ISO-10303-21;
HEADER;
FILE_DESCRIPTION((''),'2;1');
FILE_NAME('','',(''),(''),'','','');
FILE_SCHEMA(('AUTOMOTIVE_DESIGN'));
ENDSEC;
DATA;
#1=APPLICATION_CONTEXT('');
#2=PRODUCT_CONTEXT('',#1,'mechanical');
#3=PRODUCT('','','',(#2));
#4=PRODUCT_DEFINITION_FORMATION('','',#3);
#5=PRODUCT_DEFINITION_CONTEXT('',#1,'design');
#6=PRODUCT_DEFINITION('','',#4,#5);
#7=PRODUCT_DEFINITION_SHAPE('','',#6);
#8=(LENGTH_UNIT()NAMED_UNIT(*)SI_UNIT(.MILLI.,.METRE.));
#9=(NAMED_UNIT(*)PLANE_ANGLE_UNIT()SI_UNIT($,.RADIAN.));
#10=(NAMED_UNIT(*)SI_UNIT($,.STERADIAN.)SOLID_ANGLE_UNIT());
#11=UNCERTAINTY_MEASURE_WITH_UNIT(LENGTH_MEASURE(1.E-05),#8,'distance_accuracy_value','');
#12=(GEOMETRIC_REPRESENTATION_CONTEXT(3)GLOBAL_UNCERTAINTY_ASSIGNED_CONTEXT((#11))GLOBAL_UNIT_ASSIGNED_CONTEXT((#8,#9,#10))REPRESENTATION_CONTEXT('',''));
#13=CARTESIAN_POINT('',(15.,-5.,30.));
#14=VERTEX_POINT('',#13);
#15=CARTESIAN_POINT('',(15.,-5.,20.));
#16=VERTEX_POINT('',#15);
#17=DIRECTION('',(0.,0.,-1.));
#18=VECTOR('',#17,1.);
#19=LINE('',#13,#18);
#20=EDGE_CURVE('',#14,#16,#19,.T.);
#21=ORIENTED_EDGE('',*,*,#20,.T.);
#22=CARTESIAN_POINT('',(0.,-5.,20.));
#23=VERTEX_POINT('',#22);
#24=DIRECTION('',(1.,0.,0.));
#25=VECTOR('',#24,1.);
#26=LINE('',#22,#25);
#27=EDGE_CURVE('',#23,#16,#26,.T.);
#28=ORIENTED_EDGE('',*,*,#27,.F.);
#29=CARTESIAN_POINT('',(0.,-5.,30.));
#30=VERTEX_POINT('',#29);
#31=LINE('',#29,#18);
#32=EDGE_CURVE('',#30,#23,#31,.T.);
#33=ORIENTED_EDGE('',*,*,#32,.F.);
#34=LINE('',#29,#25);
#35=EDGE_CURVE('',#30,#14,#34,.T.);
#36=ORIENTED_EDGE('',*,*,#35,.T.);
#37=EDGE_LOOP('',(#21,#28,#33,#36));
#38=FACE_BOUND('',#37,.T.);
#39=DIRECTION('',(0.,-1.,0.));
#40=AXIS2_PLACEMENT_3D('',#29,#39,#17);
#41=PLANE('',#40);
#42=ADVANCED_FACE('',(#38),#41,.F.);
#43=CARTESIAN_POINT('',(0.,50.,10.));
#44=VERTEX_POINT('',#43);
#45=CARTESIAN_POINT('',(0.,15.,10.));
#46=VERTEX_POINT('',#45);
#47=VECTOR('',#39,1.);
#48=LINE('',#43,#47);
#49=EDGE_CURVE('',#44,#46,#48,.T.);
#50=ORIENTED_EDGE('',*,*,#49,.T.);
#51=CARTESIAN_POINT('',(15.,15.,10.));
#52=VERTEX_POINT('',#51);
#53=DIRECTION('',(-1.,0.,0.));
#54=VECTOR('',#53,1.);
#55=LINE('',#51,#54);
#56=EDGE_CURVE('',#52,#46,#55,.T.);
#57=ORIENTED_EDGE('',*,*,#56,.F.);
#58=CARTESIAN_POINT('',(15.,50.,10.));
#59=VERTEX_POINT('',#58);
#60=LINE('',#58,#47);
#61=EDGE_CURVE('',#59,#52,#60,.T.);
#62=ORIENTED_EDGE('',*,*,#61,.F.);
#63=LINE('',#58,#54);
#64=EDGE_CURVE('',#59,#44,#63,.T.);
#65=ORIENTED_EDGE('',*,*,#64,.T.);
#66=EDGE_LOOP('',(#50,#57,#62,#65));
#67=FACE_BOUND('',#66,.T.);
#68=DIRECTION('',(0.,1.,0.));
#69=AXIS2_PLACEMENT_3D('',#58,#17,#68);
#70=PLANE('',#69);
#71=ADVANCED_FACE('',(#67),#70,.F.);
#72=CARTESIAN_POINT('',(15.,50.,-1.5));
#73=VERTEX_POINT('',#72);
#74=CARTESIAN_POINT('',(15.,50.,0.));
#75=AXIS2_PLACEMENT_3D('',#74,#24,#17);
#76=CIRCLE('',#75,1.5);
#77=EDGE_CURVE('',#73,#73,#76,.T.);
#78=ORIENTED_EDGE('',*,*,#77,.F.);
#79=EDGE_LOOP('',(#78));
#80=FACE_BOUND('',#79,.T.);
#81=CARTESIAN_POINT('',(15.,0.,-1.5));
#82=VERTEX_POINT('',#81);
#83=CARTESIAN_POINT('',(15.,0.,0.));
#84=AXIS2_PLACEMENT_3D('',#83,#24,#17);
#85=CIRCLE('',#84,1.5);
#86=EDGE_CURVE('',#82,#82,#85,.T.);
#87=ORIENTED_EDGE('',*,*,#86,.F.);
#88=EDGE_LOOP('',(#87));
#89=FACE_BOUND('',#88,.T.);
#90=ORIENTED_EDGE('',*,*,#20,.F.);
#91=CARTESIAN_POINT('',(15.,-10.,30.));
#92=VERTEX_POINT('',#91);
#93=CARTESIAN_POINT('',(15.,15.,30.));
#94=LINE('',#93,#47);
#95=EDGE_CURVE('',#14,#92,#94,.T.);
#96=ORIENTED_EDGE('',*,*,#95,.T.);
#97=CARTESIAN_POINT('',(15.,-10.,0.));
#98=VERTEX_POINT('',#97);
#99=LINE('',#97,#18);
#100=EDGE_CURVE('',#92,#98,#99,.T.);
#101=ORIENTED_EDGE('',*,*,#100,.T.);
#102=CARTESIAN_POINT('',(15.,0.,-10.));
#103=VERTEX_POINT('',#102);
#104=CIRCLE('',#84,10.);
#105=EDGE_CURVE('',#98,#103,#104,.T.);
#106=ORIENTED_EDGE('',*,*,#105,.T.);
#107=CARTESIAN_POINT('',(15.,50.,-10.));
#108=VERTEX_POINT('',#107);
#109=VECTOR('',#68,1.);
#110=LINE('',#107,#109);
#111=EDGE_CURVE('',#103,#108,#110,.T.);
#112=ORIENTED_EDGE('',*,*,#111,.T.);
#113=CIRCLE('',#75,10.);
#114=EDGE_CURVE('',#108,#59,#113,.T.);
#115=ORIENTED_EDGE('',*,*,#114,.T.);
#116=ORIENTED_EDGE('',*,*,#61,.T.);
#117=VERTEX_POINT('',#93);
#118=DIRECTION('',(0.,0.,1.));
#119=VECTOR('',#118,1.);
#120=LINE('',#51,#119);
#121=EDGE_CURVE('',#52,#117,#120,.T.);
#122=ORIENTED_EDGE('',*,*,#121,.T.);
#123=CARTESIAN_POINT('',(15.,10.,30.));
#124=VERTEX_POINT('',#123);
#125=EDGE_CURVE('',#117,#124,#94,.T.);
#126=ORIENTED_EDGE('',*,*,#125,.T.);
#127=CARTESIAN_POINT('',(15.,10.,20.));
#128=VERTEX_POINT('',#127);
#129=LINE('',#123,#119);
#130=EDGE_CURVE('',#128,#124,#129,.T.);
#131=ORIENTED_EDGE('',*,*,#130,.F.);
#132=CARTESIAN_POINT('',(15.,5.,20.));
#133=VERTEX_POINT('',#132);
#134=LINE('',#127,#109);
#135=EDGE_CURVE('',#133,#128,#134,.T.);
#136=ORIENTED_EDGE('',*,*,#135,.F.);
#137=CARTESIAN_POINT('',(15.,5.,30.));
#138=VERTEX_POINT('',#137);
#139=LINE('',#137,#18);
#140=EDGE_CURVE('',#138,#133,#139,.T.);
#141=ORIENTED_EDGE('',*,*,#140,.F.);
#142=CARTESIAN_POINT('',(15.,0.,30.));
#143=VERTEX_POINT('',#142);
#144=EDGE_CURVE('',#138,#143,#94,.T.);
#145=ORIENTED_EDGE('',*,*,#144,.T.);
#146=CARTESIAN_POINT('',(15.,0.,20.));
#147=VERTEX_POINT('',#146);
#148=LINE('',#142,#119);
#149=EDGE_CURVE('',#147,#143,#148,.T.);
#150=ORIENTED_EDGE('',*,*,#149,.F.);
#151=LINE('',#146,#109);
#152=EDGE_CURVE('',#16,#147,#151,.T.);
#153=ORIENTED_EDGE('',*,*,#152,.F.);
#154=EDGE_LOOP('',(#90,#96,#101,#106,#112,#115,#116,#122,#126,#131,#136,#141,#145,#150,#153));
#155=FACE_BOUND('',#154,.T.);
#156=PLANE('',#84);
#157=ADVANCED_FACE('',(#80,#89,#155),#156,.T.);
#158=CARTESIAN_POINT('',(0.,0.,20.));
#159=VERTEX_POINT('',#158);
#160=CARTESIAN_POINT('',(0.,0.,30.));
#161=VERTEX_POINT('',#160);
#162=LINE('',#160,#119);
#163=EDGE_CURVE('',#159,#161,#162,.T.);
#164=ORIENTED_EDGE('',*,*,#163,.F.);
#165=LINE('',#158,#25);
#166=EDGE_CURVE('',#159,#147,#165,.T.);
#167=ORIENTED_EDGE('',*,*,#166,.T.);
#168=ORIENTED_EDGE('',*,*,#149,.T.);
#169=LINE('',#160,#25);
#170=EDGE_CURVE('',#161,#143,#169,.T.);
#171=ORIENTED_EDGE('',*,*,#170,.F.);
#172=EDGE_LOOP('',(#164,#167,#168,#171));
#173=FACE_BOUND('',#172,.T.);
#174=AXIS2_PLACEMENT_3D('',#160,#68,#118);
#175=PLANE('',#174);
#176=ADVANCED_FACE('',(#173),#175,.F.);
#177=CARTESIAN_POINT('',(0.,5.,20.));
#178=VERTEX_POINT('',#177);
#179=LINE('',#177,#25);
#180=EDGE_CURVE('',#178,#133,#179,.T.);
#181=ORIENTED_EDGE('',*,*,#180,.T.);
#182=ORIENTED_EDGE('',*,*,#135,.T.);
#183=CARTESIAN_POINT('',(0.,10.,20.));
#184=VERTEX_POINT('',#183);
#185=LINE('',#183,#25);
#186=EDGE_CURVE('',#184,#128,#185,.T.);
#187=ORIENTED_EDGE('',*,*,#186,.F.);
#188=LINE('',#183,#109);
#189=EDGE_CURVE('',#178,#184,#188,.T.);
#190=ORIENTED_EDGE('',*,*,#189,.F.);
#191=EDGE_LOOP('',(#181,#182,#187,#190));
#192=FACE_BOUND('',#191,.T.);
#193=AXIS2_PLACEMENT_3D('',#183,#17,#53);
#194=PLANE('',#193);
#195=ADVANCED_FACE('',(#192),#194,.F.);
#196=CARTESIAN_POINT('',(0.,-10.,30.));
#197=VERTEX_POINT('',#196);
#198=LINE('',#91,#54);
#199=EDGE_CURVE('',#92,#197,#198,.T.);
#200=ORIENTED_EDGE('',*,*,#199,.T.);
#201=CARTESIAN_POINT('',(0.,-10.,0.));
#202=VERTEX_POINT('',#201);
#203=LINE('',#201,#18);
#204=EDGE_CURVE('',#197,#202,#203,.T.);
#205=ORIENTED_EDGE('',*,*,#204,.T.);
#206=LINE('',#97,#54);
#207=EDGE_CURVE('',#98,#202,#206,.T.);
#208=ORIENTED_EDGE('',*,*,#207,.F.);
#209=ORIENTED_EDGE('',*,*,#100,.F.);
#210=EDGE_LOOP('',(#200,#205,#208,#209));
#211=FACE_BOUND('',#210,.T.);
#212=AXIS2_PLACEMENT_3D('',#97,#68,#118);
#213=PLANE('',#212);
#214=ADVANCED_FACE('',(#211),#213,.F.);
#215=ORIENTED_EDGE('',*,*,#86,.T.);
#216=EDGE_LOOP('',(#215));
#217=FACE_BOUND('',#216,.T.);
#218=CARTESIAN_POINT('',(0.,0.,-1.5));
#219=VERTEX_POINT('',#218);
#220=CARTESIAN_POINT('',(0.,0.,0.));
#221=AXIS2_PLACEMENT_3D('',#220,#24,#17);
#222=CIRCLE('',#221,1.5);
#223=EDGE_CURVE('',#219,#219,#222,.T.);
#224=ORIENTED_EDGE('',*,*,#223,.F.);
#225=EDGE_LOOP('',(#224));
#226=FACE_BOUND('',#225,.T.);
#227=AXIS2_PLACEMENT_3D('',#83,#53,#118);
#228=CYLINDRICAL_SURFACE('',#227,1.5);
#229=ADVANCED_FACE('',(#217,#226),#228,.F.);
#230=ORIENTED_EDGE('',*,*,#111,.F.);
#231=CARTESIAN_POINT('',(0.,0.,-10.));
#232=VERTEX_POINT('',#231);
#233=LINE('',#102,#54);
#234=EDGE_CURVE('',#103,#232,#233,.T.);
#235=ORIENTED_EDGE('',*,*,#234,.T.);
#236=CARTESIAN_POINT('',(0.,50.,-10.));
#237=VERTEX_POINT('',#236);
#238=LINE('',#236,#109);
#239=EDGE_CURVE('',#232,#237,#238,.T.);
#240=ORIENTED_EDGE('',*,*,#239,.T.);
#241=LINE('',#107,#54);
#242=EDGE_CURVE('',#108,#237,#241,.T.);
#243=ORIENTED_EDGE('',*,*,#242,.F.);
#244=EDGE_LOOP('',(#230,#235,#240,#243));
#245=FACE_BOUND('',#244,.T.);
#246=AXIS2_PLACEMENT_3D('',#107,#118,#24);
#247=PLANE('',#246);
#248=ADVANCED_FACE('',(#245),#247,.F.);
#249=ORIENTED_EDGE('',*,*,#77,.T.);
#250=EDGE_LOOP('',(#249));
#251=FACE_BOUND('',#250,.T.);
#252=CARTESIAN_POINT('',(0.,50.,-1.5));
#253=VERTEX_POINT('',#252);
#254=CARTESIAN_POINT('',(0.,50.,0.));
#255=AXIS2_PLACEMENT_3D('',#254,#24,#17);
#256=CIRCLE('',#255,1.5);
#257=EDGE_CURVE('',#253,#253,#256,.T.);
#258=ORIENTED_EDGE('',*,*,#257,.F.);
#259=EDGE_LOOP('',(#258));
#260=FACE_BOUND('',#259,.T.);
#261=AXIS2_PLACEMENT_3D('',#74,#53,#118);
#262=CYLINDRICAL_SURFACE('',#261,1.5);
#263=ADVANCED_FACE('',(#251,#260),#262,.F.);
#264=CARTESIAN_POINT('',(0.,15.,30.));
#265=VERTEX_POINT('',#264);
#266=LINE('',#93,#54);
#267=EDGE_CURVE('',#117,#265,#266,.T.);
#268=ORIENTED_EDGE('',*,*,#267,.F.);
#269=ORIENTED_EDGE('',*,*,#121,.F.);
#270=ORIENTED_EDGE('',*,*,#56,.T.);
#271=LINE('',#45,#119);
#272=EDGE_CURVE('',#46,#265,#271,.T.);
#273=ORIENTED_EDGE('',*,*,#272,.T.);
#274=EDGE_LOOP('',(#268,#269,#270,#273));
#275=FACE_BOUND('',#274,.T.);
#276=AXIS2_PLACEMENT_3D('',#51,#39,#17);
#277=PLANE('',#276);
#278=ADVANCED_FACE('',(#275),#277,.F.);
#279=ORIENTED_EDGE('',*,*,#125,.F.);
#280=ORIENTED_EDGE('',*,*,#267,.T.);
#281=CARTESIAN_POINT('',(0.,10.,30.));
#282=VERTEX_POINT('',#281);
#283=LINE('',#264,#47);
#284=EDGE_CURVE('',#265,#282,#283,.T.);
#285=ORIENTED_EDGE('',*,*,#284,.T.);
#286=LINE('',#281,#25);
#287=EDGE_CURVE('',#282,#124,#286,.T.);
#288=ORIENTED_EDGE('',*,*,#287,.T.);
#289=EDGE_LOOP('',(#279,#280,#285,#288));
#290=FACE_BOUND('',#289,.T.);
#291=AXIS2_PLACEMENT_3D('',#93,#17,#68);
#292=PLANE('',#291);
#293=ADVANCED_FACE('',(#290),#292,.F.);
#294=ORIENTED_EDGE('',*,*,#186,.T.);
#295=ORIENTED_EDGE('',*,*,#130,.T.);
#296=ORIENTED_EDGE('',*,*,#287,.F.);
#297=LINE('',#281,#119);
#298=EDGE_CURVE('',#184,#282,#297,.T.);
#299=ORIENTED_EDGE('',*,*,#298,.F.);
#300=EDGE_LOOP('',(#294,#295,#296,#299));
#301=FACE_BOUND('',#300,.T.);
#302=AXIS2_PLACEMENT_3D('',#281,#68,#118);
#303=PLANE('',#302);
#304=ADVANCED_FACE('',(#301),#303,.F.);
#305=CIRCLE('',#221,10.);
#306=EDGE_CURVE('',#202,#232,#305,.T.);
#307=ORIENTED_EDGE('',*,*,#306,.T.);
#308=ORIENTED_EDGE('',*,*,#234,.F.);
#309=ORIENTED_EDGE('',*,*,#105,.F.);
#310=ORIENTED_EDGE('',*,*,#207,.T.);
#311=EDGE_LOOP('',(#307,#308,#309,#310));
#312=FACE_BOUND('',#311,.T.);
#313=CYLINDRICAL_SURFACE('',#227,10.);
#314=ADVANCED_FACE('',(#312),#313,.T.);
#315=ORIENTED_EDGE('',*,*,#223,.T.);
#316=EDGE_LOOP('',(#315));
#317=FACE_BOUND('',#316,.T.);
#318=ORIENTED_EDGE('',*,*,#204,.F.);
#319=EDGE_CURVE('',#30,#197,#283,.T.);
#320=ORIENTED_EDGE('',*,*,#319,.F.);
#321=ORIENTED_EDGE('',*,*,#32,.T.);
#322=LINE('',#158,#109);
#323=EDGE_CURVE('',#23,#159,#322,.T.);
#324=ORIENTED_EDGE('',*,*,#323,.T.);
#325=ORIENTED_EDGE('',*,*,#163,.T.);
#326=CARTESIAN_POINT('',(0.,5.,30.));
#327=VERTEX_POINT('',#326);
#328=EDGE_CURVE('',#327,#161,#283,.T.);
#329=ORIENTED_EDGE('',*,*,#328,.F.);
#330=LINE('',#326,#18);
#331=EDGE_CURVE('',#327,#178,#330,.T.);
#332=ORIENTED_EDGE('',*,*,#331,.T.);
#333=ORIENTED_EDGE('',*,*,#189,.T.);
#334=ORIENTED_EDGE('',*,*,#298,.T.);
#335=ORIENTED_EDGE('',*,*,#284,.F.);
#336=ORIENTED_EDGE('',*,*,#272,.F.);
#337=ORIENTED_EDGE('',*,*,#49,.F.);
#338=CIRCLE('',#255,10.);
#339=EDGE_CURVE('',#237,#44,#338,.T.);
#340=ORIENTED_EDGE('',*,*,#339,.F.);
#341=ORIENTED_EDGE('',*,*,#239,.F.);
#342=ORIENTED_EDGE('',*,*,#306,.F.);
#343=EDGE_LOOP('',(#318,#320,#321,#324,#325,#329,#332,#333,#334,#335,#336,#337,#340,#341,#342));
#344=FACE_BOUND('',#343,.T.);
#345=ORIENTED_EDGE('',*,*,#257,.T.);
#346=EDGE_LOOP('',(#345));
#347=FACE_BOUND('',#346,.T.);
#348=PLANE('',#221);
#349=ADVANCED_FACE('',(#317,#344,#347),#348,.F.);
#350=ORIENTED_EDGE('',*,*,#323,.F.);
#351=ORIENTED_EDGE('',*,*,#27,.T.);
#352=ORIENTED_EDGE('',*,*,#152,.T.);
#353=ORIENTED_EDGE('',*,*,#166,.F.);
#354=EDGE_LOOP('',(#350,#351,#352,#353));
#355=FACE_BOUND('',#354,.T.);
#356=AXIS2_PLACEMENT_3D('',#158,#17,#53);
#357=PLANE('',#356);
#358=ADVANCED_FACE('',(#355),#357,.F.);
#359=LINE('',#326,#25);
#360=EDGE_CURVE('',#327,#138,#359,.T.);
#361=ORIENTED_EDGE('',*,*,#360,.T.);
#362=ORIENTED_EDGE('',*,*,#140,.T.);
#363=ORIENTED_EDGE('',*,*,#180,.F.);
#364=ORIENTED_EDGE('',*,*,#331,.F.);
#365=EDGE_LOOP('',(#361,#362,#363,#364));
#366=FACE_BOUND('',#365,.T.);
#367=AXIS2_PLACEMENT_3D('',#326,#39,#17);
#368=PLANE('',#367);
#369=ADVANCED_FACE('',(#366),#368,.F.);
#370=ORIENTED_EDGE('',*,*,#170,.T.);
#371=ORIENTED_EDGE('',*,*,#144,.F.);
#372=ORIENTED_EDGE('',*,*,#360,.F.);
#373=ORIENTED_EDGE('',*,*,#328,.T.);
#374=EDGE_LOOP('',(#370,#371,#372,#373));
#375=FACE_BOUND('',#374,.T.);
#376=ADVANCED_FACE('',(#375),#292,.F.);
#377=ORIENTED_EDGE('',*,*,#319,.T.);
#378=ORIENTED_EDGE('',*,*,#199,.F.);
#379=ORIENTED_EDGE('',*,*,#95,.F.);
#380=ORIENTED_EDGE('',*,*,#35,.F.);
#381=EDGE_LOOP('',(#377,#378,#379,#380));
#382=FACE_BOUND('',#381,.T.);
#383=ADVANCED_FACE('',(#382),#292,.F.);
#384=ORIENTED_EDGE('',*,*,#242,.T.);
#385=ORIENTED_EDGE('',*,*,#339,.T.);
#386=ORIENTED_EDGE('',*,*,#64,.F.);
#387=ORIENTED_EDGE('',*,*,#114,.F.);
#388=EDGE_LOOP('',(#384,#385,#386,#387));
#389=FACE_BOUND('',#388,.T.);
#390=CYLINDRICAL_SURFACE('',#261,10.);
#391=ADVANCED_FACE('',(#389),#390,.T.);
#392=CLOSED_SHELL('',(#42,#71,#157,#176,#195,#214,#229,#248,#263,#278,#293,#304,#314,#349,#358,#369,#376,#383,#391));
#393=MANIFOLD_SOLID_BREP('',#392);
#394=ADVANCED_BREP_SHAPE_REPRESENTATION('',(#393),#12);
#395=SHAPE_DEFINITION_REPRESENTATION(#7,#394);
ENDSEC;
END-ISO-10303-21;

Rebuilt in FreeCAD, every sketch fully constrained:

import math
import FreeCAD as App
import Part
import Sketcher
from FreeCAD import Vector

doc = App.newDocument("Part")
body = doc.addObject("PartDesign::Body", "Body")

# Sketch on YZ plane
sketch1 = body.newObject("Sketcher::SketchObject", "Sketch")
sketch1.AttachmentSupport = (doc.getObject("YZ_Plane"), [""])
sketch1.MapMode = "FlatFace"
sketch1.addGeometry([
    Part.LineSegment(Vector(15, 10, 0), Vector(15, 30, 0)),  # 0
    Part.LineSegment(Vector(15, 30, 0), Vector(-10, 30, 0)),  # 1
    Part.LineSegment(Vector(-10, 30, 0), Vector(-10, 0, 0)),  # 2
    Part.ArcOfCircle(Part.Circle(Vector(0, 0, 0), Vector(0, 0, 1), 10), math.radians(180), math.radians(270)),  # 3
    Part.LineSegment(Vector(0, -10, 0), Vector(50, -10, 0)),  # 4
    Part.ArcOfCircle(Part.Circle(Vector(50, 0, 0), Vector(0, 0, 1), 10), math.radians(-90), math.radians(90)),  # 5
    Part.LineSegment(Vector(50, 10, 0), Vector(15, 10, 0)),  # 6
    Part.Circle(Vector(0, 0, 0), Vector(0, 0, 1), 1.5),  # 7
    Part.Circle(Vector(50, 0, 0), Vector(0, 0, 1), 1.5),  # 8
], False)
sketch1.addConstraint([
    Sketcher.Constraint("Coincident", 0, 2, 1, 1),
    Sketcher.Constraint("Coincident", 1, 2, 2, 1),
    Sketcher.Constraint("Tangent", 2, 2, 3, 1),
    Sketcher.Constraint("Tangent", 3, 2, 4, 1),
    Sketcher.Constraint("Tangent", 4, 2, 5, 1),
    Sketcher.Constraint("Tangent", 5, 2, 6, 1),
    Sketcher.Constraint("Coincident", 6, 2, 0, 1),
    Sketcher.Constraint("Vertical", 0),
    Sketcher.Constraint("Horizontal", 1),
    Sketcher.Constraint("Vertical", 2),
    Sketcher.Constraint("Horizontal", 4),
    Sketcher.Constraint("Horizontal", 6),
    Sketcher.Constraint("Coincident", 3, 3, -1, 1),
    Sketcher.Constraint("Coincident", 7, 3, -1, 1),
    Sketcher.Constraint("Coincident", 8, 3, 5, 3),
    Sketcher.Constraint("Equal", 3, 5),
    Sketcher.Constraint("Equal", 7, 8),
    Sketcher.Constraint("Diameter", 7, 3.0),
    Sketcher.Constraint("Radius", 3, 10.0),
    Sketcher.Constraint("DistanceX", 1, 2, 1, 1, 25.0),
    Sketcher.Constraint("DistanceX", 4, 1, 4, 2, 50.0),
    Sketcher.Constraint("DistanceY", 0, 1, 0, 2, 20.0),
])
pad1 = body.newObject("PartDesign::Pad", "Pad")
pad1.Profile = sketch1
pad1.Length = 15

# Sketch on YZ plane
sketch2 = body.newObject("Sketcher::SketchObject", "Sketch001")
sketch2.AttachmentSupport = (doc.getObject("YZ_Plane"), [""])
sketch2.MapMode = "FlatFace"
sketch2.AttachmentOffset = App.Placement(Vector(0, 0, 15), App.Rotation())
sketch2.addGeometry([
    Part.LineSegment(Vector(10, 30, 0), Vector(5, 30, 0)),  # 0
    Part.LineSegment(Vector(5, 30, 0), Vector(5, 20, 0)),  # 1
    Part.LineSegment(Vector(5, 20, 0), Vector(10, 20, 0)),  # 2
    Part.LineSegment(Vector(10, 20, 0), Vector(10, 30, 0)),  # 3
    Part.LineSegment(Vector(0, 30, 0), Vector(-5, 30, 0)),  # 4
    Part.LineSegment(Vector(-5, 30, 0), Vector(-5, 20, 0)),  # 5
    Part.LineSegment(Vector(-5, 20, 0), Vector(0, 20, 0)),  # 6
    Part.LineSegment(Vector(0, 20, 0), Vector(0, 30, 0)),  # 7
], False)
sketch2.addConstraint([
    Sketcher.Constraint("Coincident", 0, 2, 1, 1),
    Sketcher.Constraint("Coincident", 1, 2, 2, 1),
    Sketcher.Constraint("Coincident", 2, 2, 3, 1),
    Sketcher.Constraint("Coincident", 3, 2, 0, 1),
    Sketcher.Constraint("Coincident", 4, 2, 5, 1),
    Sketcher.Constraint("Coincident", 5, 2, 6, 1),
    Sketcher.Constraint("Coincident", 6, 2, 7, 1),
    Sketcher.Constraint("Coincident", 7, 2, 4, 1),
    Sketcher.Constraint("Horizontal", 0),
    Sketcher.Constraint("Vertical", 1),
    Sketcher.Constraint("Horizontal", 2),
    Sketcher.Constraint("Vertical", 3),
    Sketcher.Constraint("Horizontal", 4),
    Sketcher.Constraint("Vertical", 5),
    Sketcher.Constraint("Horizontal", 6),
    Sketcher.Constraint("Vertical", 7),
    Sketcher.Constraint("Symmetric", 0, 2, 4, 2, -2),
    Sketcher.Constraint("PointOnObject", 6, 2, -2),
    Sketcher.Constraint("Horizontal", 2, 2, 5, 2),
    Sketcher.Constraint("Equal", 2, 4),
    Sketcher.Constraint("DistanceX", 0, 2, 0, 1, 5.0),
    Sketcher.Constraint("DistanceY", 1, 2, 1, 1, 10.0),
    Sketcher.Constraint("DistanceY", -1, 1, 0, 2, 30.0),
])
pocket1 = body.newObject("PartDesign::Pocket", "Pocket")
pocket1.Profile = sketch2
pocket1.Length = 15

doc.recompute()
